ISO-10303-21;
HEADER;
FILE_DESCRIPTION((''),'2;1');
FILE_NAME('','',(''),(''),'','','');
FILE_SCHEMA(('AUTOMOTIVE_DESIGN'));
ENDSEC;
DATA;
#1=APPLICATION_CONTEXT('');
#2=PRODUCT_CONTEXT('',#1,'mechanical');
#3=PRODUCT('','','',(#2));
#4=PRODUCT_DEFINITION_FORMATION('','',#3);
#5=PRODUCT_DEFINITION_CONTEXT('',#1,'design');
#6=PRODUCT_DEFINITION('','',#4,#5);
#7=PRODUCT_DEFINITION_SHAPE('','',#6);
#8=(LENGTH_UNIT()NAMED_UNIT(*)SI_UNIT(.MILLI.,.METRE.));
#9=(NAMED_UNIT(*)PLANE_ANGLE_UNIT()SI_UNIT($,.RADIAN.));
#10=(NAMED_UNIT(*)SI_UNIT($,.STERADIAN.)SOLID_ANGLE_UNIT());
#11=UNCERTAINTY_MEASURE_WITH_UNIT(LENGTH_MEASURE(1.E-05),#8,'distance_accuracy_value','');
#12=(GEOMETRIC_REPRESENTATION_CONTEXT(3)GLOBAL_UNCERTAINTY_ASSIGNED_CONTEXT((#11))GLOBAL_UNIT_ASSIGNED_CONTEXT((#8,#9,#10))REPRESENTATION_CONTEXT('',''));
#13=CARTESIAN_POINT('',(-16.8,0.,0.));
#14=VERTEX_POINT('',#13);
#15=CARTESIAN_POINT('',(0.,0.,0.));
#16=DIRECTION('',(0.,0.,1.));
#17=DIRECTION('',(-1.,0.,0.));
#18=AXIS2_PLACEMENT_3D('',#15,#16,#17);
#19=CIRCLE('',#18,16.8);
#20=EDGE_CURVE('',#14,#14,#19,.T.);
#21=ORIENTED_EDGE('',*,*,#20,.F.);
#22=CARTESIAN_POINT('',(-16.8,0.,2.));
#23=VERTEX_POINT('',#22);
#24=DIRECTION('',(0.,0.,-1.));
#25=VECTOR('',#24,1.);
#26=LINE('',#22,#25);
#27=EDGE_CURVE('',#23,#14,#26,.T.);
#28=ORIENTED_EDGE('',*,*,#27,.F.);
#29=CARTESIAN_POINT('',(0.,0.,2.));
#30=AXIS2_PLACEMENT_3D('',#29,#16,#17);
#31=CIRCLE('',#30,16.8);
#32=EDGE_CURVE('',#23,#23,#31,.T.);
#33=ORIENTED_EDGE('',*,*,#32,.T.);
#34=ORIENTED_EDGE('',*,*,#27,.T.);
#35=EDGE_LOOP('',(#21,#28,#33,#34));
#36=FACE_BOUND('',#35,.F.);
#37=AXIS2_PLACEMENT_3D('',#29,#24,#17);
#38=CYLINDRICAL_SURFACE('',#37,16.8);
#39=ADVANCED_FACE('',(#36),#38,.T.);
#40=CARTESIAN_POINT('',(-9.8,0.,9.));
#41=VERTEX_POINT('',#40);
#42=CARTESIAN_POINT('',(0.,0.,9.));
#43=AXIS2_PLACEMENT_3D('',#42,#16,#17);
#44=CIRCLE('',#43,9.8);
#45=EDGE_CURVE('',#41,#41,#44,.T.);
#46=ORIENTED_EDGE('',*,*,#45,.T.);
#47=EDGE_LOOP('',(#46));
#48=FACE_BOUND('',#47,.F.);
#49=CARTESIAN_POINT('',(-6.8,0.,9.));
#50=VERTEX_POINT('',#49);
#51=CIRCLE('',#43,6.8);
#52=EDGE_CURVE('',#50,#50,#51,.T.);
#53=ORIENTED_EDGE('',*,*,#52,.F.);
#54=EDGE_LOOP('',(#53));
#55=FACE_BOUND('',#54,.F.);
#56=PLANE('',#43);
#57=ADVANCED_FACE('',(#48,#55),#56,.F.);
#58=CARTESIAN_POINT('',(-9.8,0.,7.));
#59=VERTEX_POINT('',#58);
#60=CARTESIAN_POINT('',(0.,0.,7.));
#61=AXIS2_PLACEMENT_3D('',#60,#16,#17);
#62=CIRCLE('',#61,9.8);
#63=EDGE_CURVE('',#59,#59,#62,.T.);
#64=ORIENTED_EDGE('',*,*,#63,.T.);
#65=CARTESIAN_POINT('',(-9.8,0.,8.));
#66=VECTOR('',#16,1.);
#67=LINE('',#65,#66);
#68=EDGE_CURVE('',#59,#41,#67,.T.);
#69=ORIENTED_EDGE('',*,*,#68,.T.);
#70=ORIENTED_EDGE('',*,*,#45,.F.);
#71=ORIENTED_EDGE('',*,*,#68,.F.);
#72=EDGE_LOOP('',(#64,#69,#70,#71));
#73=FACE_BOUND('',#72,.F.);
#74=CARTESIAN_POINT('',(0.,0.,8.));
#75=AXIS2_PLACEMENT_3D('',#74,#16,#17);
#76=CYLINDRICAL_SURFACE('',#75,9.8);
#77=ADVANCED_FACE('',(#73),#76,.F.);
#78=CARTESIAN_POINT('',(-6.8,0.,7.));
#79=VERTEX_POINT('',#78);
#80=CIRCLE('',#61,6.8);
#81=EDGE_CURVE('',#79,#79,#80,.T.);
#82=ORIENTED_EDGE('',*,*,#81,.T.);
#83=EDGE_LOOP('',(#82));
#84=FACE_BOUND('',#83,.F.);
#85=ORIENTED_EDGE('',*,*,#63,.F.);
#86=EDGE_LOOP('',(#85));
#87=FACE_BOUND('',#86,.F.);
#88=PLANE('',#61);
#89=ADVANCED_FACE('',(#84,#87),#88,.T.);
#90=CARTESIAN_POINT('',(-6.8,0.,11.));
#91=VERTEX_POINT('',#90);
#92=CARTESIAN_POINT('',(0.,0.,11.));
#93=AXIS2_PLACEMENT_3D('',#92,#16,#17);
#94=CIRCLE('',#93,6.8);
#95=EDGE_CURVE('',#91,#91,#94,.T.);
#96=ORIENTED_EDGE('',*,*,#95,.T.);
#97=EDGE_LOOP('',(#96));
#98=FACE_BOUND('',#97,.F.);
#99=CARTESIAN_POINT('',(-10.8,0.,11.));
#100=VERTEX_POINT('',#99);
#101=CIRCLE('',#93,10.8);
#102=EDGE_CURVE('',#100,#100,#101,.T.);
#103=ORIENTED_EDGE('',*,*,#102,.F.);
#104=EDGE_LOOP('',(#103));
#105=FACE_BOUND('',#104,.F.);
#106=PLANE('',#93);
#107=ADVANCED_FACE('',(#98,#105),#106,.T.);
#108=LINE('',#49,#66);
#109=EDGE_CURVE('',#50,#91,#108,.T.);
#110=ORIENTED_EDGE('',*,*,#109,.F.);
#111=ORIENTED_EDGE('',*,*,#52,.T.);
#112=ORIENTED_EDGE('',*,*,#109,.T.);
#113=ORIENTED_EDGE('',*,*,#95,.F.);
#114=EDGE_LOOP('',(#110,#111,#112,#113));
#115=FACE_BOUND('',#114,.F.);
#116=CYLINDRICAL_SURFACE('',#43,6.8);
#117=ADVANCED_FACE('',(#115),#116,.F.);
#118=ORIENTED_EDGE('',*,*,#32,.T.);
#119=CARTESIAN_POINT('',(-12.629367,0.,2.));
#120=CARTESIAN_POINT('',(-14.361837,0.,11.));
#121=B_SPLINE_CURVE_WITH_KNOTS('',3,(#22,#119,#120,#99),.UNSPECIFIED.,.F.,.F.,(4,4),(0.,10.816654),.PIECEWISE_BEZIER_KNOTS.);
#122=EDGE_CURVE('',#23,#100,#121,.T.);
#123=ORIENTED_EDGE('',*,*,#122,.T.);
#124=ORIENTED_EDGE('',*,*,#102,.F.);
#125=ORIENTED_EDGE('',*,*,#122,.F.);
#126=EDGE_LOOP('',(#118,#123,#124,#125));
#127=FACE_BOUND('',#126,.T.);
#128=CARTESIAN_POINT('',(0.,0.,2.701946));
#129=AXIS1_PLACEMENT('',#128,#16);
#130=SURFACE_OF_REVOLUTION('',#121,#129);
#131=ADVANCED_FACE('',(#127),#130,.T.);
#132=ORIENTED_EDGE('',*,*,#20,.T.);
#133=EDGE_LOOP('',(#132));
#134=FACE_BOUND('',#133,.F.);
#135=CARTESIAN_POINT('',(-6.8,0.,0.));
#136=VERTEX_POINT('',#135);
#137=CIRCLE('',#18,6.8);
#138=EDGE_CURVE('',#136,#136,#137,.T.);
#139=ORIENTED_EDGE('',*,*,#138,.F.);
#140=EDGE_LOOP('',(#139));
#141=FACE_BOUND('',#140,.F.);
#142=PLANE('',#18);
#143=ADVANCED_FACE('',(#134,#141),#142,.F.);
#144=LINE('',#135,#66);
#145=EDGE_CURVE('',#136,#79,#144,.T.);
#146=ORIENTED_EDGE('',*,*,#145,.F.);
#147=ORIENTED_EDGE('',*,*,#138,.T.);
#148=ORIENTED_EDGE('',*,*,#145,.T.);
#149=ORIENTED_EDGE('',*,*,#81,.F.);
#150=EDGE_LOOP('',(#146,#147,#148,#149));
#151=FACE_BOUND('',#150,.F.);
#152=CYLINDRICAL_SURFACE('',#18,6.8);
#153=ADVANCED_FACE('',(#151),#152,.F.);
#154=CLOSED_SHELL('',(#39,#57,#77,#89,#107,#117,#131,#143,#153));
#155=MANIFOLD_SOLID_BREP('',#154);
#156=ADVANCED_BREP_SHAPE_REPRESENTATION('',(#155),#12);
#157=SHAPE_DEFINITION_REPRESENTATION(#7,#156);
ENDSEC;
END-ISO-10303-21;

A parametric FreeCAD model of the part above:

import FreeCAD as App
import Part
import Sketcher

V = App.Vector

doc = App.newDocument("Part")
body = doc.addObject("PartDesign::Body", "Body")

# Sketch on XZ plane
sketch1 = body.newObject("Sketcher::SketchObject", "Sketch")
sketch1.AttachmentSupport = (doc.getObject("XZ_Plane"), [""])
sketch1.MapMode = "FlatFace"
sketch1.addGeometry([
    Part.LineSegment(V(-6.8, 9, 0), V(-6.8, 11, 0)),  # 0
    Part.LineSegment(V(-6.8, 11, 0), V(-10.8, 11, 0)),  # 1
    Part.BSplineCurve([V(-16.8, 2, 0), V(-12.629367, 2, 0), V(-14.361837, 11, 0), V(-10.8, 11, 0)], [4, 4], [0, 10.816654], False, 3, [1, 1, 1, 1], False),  # 2
    Part.LineSegment(V(-16.8, 2, 0), V(-16.8, 0, 0)),  # 3
    Part.LineSegment(V(-16.8, 0, 0), V(-6.8, 0, 0)),  # 4
    Part.LineSegment(V(-6.8, 0, 0), V(-6.8, 7, 0)),  # 5
    Part.LineSegment(V(-6.8, 7, 0), V(-9.8, 7, 0)),  # 6
    Part.LineSegment(V(-9.8, 7, 0), V(-9.8, 9, 0)),  # 7
    Part.LineSegment(V(-9.8, 9, 0), V(-6.8, 9, 0)),  # 8
], False)
sketch1.addConstraint([
    Sketcher.Constraint("Block", 2),
    Sketcher.Constraint("Coincident", 0, 2, 1, 1),
    Sketcher.Constraint("Coincident", 1, 2, 2, 2),
    Sketcher.Constraint("Coincident", 2, 1, 3, 1),
    Sketcher.Constraint("Coincident", 3, 2, 4, 1),
    Sketcher.Constraint("Coincident", 4, 2, 5, 1),
    Sketcher.Constraint("Coincident", 5, 2, 6, 1),
    Sketcher.Constraint("Coincident", 6, 2, 7, 1),
    Sketcher.Constraint("Coincident", 7, 2, 8, 1),
    Sketcher.Constraint("Coincident", 8, 2, 0, 1),
    Sketcher.Constraint("Vertical", 0),
    Sketcher.Constraint("Horizontal", 1),
    Sketcher.Constraint("Vertical", 3),
    Sketcher.Constraint("Horizontal", 4),
    Sketcher.Constraint("Vertical", 5),
    Sketcher.Constraint("Horizontal", 6),
    Sketcher.Constraint("Vertical", 7),
    Sketcher.Constraint("Horizontal", 8),
    Sketcher.Constraint("PointOnObject", 3, 2, -1),
    Sketcher.Constraint("Vertical", 0, 2, 4, 2),
    Sketcher.Constraint("Equal", 0, 3),
    Sketcher.Constraint("Equal", 3, 7),
    Sketcher.Constraint("DistanceX", 1, 2, 1, 1, 4.0),
    Sketcher.Constraint("DistanceX", 6, 2, 6, 1, 3.0),
])
revolution = body.newObject("PartDesign::Revolution", "Revolution")
revolution.Profile = sketch1
revolution.ReferenceAxis = (sketch1, ["V_Axis"])
revolution.Angle = 360

doc.recompute()
